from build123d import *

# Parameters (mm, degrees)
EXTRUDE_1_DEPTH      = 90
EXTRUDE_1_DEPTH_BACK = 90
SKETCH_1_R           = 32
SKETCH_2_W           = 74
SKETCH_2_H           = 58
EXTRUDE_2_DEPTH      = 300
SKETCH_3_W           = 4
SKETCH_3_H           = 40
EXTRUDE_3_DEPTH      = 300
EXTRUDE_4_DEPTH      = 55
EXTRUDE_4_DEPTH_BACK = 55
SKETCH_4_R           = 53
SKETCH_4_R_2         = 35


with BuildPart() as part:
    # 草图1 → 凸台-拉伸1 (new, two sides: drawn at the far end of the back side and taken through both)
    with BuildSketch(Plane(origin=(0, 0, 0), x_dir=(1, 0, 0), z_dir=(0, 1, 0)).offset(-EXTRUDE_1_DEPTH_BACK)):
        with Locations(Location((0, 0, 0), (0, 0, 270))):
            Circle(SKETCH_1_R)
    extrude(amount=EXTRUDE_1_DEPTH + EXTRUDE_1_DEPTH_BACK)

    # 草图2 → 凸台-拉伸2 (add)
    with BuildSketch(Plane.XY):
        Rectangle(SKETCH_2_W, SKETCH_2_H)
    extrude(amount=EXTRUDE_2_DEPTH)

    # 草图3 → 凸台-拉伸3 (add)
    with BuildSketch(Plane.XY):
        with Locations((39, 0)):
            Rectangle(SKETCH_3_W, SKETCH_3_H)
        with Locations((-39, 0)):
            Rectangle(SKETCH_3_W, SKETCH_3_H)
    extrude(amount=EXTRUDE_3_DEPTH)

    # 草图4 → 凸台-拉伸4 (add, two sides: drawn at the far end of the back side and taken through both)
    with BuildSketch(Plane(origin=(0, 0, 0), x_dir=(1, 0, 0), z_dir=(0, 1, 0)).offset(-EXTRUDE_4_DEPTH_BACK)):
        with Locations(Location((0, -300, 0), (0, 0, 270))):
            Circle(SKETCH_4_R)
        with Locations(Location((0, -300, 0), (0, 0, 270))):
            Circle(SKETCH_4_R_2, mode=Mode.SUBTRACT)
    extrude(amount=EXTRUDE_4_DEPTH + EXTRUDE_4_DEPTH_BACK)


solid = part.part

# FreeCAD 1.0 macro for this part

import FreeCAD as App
import Part
import Sketcher
Q = App.Units.Quantity


def add_polygon(sketch, points):
    """Adds a closed chain of lines whose ends are joined by coincident constraints."""
    first, n = sketch.GeometryCount, len(points)
    for a, b in zip(points, points[1:] + points[:1]):
        sketch.addGeometry(Part.LineSegment(App.Vector(*a, 0), App.Vector(*b, 0)), False)
    for i in range(n):
        sketch.addConstraint(Sketcher.Constraint("Coincident", first + i, 2, first + (i + 1) % n, 1))

doc = App.newDocument("Part")
body = doc.addObject("PartDesign::Body", "Body")

# Sketch on XZ plane
sketch1 = doc.addObject("Sketcher::SketchObject", "Sketch")
body.addObject(sketch1)
sketch1.AttachmentSupport = (doc.XZ_Plane, [""])
sketch1.MapMode = "FlatFace"
sketch1.addGeometry(Part.Circle(App.Vector(0, 0, 0), App.Vector(0, 0, 1), 32), False)
sketch1.addConstraint([
    Sketcher.Constraint("Coincident", 0, 3, -1, 1),
    Sketcher.Constraint("Diameter", 0, Q("64 mm")),
])
pad1 = doc.addObject("PartDesign::Pad", "Pad")
body.addObject(pad1)
pad1.Profile = sketch1
pad1.Type = "TwoLengths"
pad1.Length = 90
pad1.Length2 = 90
pad1.Reversed = True

# Sketch on XY plane
sketch2 = doc.addObject("Sketcher::SketchObject", "Sketch001")
body.addObject(sketch2)
sketch2.AttachmentSupport = (doc.XY_Plane, [""])
sketch2.MapMode = "FlatFace"
add_polygon(sketch2, [(-37, 29), (-37, -29), (37, -29), (37, 29)])  # lines 0-3
sketch2.addConstraint([
    Sketcher.Constraint("Vertical", 0),
    Sketcher.Constraint("Horizontal", 1),
    Sketcher.Constraint("Vertical", 2),
    Sketcher.Constraint("Horizontal", 3),
    Sketcher.Constraint("Symmetric", 0, 2, 2, 2, -1, 1),
    Sketcher.Constraint("DistanceX", 1, 1, 1, 2, Q("74 mm")),
    Sketcher.Constraint("DistanceY", 0, 2, 0, 1, Q("58 mm")),
])
pad2 = doc.addObject("PartDesign::Pad", "Pad001")
body.addObject(pad2)
pad2.Profile = sketch2
pad2.Length = 300

# Sketch on XY plane
sketch3 = doc.addObject("Sketcher::SketchObject", "Sketch002")
body.addObject(sketch3)
sketch3.AttachmentSupport = (doc.XY_Plane, [""])
sketch3.MapMode = "FlatFace"
add_polygon(sketch3, [(37, 20), (37, -20), (41, -20), (41, 20)])  # lines 0-3
add_polygon(sketch3, [(-41, 20), (-41, -20), (-37, -20), (-37, 20)])  # lines 4-7
sketch3.addConstraint([
    Sketcher.Constraint("Vertical", 0),
    Sketcher.Constraint("Horizontal", 1),
    Sketcher.Constraint("Vertical", 2),
    Sketcher.Constraint("Horizontal", 3),
    Sketcher.Constraint("Vertical", 4),
    Sketcher.Constraint("Horizontal", 5),
    Sketcher.Constraint("Vertical", 6),
    Sketcher.Constraint("Horizontal", 7),
    Sketcher.Constraint("Symmetric", 2, 2, 4, 2, -1, 1),
    Sketcher.Constraint("Symmetric", 0, 2, 6, 2, -1, 1),
    Sketcher.Constraint("Horizontal", 1, 2, 4, 2),
    Sketcher.Constraint("DistanceX", 1, 1, 1, 2, Q("4 mm")),
    Sketcher.Constraint("DistanceY", 0, 2, 0, 1, Q("40 mm")),
    Sketcher.Constraint("DistanceX", -1, 1, 0, 2, Q("37 mm")),
])
pad3 = doc.addObject("PartDesign::Pad", "Pad002")
body.addObject(pad3)
pad3.Profile = sketch3
pad3.Length = 300

# Sketch on XZ plane
sketch4 = doc.addObject("Sketcher::SketchObject", "Sketch003")
body.addObject(sketch4)
sketch4.AttachmentSupport = (doc.XZ_Plane, [""])
sketch4.MapMode = "FlatFace"
sketch4.addGeometry([
    Part.Circle(App.Vector(0, 300, 0), App.Vector(0, 0, 1), 53),
    Part.Circle(App.Vector(0, 300, 0), App.Vector(0, 0, 1), 35),
], False)
sketch4.addConstraint([
    Sketcher.Constraint("Coincident", 1, 3, 0, 3),
    Sketcher.Constraint("PointOnObject", 0, 3, -2),
    Sketcher.Constraint("Diameter", 0, Q("106 mm")),
    Sketcher.Constraint("Diameter", 1, Q("70 mm")),
    Sketcher.Constraint("DistanceY", -1, 1, 0, 3, Q("300 mm")),
])
pad4 = doc.addObject("PartDesign::Pad", "Pad003")
body.addObject(pad4)
pad4.Profile = sketch4
pad4.Type = "TwoLengths"
pad4.Length = 55
pad4.Length2 = 55
pad4.Reversed = True

doc.recompute()
